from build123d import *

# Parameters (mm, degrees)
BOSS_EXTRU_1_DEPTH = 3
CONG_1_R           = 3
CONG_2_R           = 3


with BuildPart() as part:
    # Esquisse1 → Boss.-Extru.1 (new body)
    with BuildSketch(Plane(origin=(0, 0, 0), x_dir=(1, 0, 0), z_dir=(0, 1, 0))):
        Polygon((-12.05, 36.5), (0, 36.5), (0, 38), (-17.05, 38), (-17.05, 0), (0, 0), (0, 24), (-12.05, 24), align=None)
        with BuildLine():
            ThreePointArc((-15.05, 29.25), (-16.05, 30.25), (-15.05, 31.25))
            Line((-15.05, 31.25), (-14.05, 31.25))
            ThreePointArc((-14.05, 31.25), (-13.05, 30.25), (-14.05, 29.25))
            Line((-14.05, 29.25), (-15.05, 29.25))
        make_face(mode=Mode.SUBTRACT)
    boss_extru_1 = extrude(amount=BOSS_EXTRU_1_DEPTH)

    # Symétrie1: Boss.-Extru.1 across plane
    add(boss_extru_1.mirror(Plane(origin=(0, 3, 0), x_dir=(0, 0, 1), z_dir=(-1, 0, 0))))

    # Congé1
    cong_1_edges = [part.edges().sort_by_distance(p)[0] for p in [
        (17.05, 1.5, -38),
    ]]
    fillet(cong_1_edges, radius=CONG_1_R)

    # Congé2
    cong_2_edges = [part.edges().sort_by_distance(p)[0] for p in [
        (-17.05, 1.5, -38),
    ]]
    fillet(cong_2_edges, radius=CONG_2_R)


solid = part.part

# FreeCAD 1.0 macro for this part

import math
import FreeCAD as App
import Part
import Sketcher
Q = App.Units.Quantity


def edges_at(feature, points):
    """Names of the edges that pass closest to the given points."""
    edges = feature.Shape.Edges
    near = lambda p: min(range(len(edges)), key=lambda i: edges[i].distToShape(Part.Vertex(*p))[0])
    return sorted({f"Edge{near(p) + 1}" for p in points})


def add_polygon(sketch, points):
    """Adds a closed chain of lines whose ends are joined by coincident constraints."""
    first, n = sketch.GeometryCount, len(points)
    for a, b in zip(points, points[1:] + points[:1]):
        sketch.addGeometry(Part.LineSegment(App.Vector(*a, 0), App.Vector(*b, 0)), False)
    for i in range(n):
        sketch.addConstraint(Sketcher.Constraint("Coincident", first + i, 2, first + (i + 1) % n, 1))

doc = App.newDocument("Part")
body = doc.addObject("PartDesign::Body", "Body")

sketch1 = doc.addObject("Sketcher::SketchObject", "Sketch")
body.addObject(sketch1)
sketch1.AttachmentSupport = (doc.XZ_Plane, [""])
sketch1.MapMode = "FlatFace"
add_polygon(sketch1, [(-12.05, -36.5), (0, -36.5), (0, -38), (-17.05, -38), (-17.05, 0), (0, 0), (0, -24), (-12.05, -24)])
sketch1.addGeometry(Part.LineSegment(App.Vector(-14.05, -29.25, 0), App.Vector(-15.05, -29.25, 0)), False)
sketch1.addGeometry(Part.ArcOfCircle(Part.Circle(App.Vector(-15.05, -30.25, 0), App.Vector(0, 0, 1), 1), math.radians(90), math.radians(270)), False)
sketch1.addGeometry(Part.LineSegment(App.Vector(-15.05, -31.25, 0), App.Vector(-14.05, -31.25, 0)), False)
sketch1.addGeometry(Part.ArcOfCircle(Part.Circle(App.Vector(-14.05, -30.25, 0), App.Vector(0, 0, 1), 1), math.radians(-90), math.radians(90)), False)
sketch1.addConstraint(Sketcher.Constraint("Tangent", 8, 2, 9, 1))
sketch1.addConstraint(Sketcher.Constraint("Tangent", 9, 2, 10, 1))
sketch1.addConstraint(Sketcher.Constraint("Tangent", 10, 2, 11, 1))
sketch1.addConstraint(Sketcher.Constraint("Tangent", 11, 2, 8, 1))
sketch1.addConstraint(Sketcher.Constraint("Horizontal", 0))
sketch1.addConstraint(Sketcher.Constraint("Vertical", 1))
sketch1.addConstraint(Sketcher.Constraint("Horizontal", 2))
sketch1.addConstraint(Sketcher.Constraint("Vertical", 3))
sketch1.addConstraint(Sketcher.Constraint("Horizontal", 4))
sketch1.addConstraint(Sketcher.Constraint("Vertical", 5))
sketch1.addConstraint(Sketcher.Constraint("Horizontal", 6))
sketch1.addConstraint(Sketcher.Constraint("Vertical", 7))
sketch1.addConstraint(Sketcher.Constraint("Horizontal", 8))
sketch1.addConstraint(Sketcher.Constraint("Horizontal", 10))
sketch1.addConstraint(Sketcher.Constraint("Coincident", 4, 2, -1, 1))
sketch1.addConstraint(Sketcher.Constraint("PointOnObject", 0, 2, -2))
sketch1.addConstraint(Sketcher.Constraint("Radius", 9, Q("1 mm")))
sketch1.addConstraint(Sketcher.Constraint("DistanceX", 8, 2, 8, 1, Q("1 mm")))
sketch1.addConstraint(Sketcher.Constraint("DistanceY", 3, 1, 3, 2, Q("38 mm")))
sketch1.addConstraint(Sketcher.Constraint("DistanceY", 5, 2, 5, 1, Q("24 mm")))
sketch1.addConstraint(Sketcher.Constraint("DistanceY", 1, 2, 1, 1, Q("1.5 mm")))
sketch1.addConstraint(Sketcher.Constraint("DistanceX", 2, 2, 9, 3, Q("2 mm")))
sketch1.addConstraint(Sketcher.Constraint("DistanceX", 11, 3, 6, 2, Q("2 mm")))
sketch1.addConstraint(Sketcher.Constraint("DistanceX", 0, 1, 0, 2, Q("12.05 mm")))
sketch1.addConstraint(Sketcher.Constraint("DistanceY", 9, 3, -1, 1, Q("30.25 mm")))
pad1 = doc.addObject("PartDesign::Pad", "Pad")
body.addObject(pad1)
pad1.Profile = sketch1
pad1.Length = 3
pad1.Reversed = True
doc.recompute()

mirrored = doc.addObject("PartDesign::Mirrored", "Mirrored")
body.addObject(mirrored)
mirrored.Originals = [pad1]
mirrored.MirrorPlane = (doc.YZ_Plane, [""])
body.Tip = mirrored
doc.recompute()

fillet = doc.addObject("PartDesign::Fillet", "Fillet")
body.addObject(fillet)
fillet.Base = (mirrored, edges_at(mirrored, [(17.05, 1.5, -38)]))
fillet.Radius = 3
doc.recompute()

fillet2 = doc.addObject("PartDesign::Fillet", "Fillet001")
body.addObject(fillet2)
fillet2.Base = (fillet, edges_at(fillet, [(-17.05, 1.5, -38)]))
fillet2.Radius = 3

doc.recompute()
